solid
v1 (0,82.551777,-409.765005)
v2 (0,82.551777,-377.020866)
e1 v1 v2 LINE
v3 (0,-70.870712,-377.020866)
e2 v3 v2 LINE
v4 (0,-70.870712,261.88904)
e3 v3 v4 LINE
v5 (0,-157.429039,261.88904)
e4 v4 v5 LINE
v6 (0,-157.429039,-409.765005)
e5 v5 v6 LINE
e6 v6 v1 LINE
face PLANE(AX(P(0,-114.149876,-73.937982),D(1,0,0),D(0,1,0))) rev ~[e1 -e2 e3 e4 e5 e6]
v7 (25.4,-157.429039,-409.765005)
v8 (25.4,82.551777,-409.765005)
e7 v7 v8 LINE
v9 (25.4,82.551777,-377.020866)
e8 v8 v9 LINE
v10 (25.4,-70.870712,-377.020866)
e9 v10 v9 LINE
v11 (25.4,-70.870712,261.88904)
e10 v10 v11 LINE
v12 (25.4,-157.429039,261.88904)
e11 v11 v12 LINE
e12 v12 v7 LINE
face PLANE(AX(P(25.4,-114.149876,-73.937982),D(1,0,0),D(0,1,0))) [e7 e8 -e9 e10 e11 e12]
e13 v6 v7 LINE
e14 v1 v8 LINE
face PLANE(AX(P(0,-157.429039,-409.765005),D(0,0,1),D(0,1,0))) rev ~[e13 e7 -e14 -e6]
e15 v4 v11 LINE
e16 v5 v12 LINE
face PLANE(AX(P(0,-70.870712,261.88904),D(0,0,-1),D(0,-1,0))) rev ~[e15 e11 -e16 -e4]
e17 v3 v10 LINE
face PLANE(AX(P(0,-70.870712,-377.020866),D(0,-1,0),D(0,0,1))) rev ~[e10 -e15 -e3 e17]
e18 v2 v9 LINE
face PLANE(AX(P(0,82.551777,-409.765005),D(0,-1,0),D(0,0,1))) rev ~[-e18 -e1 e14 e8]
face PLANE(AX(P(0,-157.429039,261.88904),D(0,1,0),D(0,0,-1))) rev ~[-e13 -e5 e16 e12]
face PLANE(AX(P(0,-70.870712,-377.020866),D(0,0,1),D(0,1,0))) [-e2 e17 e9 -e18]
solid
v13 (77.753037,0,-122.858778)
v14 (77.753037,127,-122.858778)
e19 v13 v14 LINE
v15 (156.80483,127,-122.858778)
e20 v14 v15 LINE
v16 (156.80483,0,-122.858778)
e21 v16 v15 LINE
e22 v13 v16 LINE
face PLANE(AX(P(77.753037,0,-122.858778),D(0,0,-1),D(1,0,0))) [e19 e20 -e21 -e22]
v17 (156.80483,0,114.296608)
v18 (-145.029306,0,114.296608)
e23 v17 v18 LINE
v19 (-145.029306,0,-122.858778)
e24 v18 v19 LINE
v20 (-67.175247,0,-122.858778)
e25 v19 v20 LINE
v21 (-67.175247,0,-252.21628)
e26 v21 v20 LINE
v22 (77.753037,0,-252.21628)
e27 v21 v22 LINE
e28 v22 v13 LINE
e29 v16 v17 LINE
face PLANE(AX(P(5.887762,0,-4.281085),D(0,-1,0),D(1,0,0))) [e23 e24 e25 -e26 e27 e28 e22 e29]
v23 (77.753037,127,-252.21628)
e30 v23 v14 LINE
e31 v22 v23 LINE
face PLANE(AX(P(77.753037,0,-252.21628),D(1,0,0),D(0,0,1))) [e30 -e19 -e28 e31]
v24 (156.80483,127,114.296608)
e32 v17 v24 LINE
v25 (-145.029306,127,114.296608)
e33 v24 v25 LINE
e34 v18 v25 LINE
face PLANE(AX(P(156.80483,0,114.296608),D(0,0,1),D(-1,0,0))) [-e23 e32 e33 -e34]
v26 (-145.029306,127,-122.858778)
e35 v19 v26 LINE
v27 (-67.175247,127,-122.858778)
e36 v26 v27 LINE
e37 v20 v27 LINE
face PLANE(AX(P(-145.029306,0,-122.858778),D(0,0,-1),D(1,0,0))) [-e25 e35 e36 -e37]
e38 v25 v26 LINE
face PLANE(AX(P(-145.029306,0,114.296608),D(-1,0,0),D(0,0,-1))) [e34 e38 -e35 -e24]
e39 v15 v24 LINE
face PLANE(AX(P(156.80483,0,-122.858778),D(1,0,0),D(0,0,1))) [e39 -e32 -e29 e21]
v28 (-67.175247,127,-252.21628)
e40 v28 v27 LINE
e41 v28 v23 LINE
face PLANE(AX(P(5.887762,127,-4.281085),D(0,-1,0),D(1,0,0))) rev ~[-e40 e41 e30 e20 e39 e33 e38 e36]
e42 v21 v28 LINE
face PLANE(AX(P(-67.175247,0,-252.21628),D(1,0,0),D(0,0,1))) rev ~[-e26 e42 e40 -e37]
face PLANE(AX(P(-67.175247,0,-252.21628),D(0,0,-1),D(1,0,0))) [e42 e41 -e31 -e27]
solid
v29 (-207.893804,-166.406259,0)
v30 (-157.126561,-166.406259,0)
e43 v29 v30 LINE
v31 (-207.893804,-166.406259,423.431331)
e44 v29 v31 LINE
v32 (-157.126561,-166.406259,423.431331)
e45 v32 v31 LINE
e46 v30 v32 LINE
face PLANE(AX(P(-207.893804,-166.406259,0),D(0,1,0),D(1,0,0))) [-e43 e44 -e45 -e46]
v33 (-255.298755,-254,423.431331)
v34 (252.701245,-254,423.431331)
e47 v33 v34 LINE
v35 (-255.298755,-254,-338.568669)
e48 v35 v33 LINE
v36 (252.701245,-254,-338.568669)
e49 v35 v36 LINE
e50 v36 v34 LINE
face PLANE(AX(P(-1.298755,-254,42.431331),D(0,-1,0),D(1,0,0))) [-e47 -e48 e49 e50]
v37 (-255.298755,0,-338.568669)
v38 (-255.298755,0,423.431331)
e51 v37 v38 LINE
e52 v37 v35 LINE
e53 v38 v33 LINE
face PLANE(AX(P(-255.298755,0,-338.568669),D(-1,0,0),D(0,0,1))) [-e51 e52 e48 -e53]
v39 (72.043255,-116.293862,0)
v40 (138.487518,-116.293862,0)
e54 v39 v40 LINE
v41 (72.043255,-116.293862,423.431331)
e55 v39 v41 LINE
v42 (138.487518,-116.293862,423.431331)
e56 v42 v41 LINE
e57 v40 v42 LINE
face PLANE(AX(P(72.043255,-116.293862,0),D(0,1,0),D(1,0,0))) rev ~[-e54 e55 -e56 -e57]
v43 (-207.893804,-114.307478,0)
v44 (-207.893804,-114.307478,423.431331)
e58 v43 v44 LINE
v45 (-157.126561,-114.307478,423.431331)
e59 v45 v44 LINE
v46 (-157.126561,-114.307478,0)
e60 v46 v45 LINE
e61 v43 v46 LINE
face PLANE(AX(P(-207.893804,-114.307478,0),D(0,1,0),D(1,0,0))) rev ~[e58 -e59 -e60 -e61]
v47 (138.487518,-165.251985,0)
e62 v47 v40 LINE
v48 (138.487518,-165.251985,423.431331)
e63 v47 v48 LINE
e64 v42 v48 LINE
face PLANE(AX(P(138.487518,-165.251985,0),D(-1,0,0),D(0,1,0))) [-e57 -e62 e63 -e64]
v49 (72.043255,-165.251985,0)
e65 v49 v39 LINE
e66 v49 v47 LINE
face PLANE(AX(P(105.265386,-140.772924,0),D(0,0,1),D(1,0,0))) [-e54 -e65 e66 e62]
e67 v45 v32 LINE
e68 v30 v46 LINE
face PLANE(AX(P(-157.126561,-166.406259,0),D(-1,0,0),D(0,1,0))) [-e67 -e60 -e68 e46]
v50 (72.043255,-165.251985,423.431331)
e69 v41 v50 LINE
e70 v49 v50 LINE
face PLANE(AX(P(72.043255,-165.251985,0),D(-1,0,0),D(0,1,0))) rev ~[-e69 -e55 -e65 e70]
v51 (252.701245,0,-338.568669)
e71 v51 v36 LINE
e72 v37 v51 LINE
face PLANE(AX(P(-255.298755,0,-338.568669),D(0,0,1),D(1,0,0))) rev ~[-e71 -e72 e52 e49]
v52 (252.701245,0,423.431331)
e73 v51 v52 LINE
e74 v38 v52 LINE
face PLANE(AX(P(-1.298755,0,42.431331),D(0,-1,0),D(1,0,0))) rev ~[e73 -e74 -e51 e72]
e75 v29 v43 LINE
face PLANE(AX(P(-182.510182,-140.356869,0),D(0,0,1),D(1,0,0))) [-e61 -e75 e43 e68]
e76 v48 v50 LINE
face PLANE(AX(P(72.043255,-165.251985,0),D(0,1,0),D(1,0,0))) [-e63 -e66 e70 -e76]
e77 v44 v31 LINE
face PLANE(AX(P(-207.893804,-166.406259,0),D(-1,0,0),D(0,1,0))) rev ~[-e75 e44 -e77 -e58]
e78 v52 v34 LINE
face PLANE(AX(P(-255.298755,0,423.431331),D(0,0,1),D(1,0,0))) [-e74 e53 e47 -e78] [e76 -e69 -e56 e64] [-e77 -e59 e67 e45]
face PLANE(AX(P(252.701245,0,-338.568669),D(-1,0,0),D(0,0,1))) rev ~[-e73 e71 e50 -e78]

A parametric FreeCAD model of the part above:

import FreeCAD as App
import Part
import Sketcher
from FreeCAD import Vector
Q = App.Units.Quantity


def add_polygon(sketch, points):
    """Adds a closed chain of lines whose ends are joined by coincident constraints."""
    first, n = sketch.GeometryCount, len(points)
    for a, b in zip(points, points[1:] + points[:1]):
        sketch.addGeometry(Part.LineSegment(App.Vector(*a, 0), App.Vector(*b, 0)), False)
    for i in range(n):
        sketch.addConstraint(Sketcher.Constraint("Coincident", first + i, 2, first + (i + 1) % n, 1))

doc = App.newDocument("Part")
params = doc.addObject("Spreadsheet::Sheet", "Params")
for row, (alias, value) in enumerate([
    ("sketch1_width", "20 in"),
    ("sketch1_height", "30 in"),
    ("pad1_length", "10 in"),
    ("pocket1_length", "20 in"),
    ("pad2_length", "5 in"),
    ("pad3_length", "1 in"),
], start=1):
    params.set(f"A{row}", alias)
    params.set(f"B{row}", "=" + value)
    params.setAlias(f"B{row}", alias)

body = doc.addObject("PartDesign::Body", "Body")

# Sketch on XZ plane
sketch1 = body.newObject("Sketcher::SketchObject", "Sketch")
sketch1.AttachmentSupport = (doc.getObject("XZ_Plane"), [""])
sketch1.MapMode = "FlatFace"
add_polygon(sketch1, [(-255, 423), (-255, -339), (253, -339), (253, 423)])  # lines 0-3
sketch1.addConstraint([
    Sketcher.Constraint("Vertical", 0),
    Sketcher.Constraint("Horizontal", 1),
    Sketcher.Constraint("Vertical", 2),
    Sketcher.Constraint("Horizontal", 3),
    Sketcher.Constraint("DistanceX", 1, 1, 1, 2, Q("20 in")),
    Sketcher.Constraint("DistanceY", 0, 2, 0, 1, Q("30 in")),
    Sketcher.Constraint("DistanceY", 0, 2, -1, 1, Q("338.568669 mm")),
    Sketcher.Constraint("DistanceX", 0, 2, -1, 1, Q("255.298755 mm")),
])
sketch1.setExpression("Constraints[8]", "Params.sketch1_width")
sketch1.setExpression("Constraints[9]", "Params.sketch1_height")
pad1 = body.newObject("PartDesign::Pad", "Pad")
pad1.Profile = sketch1
pad1.setExpression("Length", "Params.pad1_length")

# Sketch on XY plane
sketch2 = body.newObject("Sketcher::SketchObject", "Sketch001")
sketch2.AttachmentSupport = (doc.getObject("XY_Plane"), [""])
sketch2.MapMode = "FlatFace"
add_polygon(sketch2, [(-208, -114), (-208, -166), (-157, -166), (-157, -114)])  # lines 0-3
add_polygon(sketch2, [(72, -116), (72, -165), (138, -165), (138, -116)])  # lines 4-7
sketch2.addConstraint([
    Sketcher.Constraint("Vertical", 0),
    Sketcher.Constraint("Horizontal", 1),
    Sketcher.Constraint("Vertical", 2),
    Sketcher.Constraint("Horizontal", 3),
    Sketcher.Constraint("Vertical", 4),
    Sketcher.Constraint("Horizontal", 5),
    Sketcher.Constraint("Vertical", 6),
    Sketcher.Constraint("Horizontal", 7),
    Sketcher.Constraint("DistanceY", 0, 2, 0, 1, Q("52.098781 mm")),
    Sketcher.Constraint("DistanceX", 1, 1, 1, 2, Q("50.767243 mm")),
    Sketcher.Constraint("DistanceX", 5, 1, 5, 2, Q("66.444263 mm")),
    Sketcher.Constraint("DistanceY", 4, 2, 4, 1, Q("48.958123 mm")),
    Sketcher.Constraint("DistanceY", 0, 2, -1, 1, Q("166.406259 mm")),
    Sketcher.Constraint("DistanceX", 1, 2, -1, 1, Q("157.126561 mm")),
    Sketcher.Constraint("DistanceX", 0, 2, 4, 2, Q("279.937059 mm")),
    Sketcher.Constraint("DistanceY", 4, 2, -1, 1, Q("165.251985 mm")),
])
pocket1 = body.newObject("PartDesign::Pocket", "Pocket")
pocket1.Profile = sketch2
pocket1.setExpression("Length", "Params.pocket1_length")
pocket1.Reversed = True
body2 = doc.addObject("PartDesign::Body", "Body001")

# Sketch on XZ plane
sketch3 = body2.newObject("Sketcher::SketchObject", "Sketch002")
sketch3.AttachmentSupport = (doc.getObject("XZ_Plane001"), [""])
sketch3.MapMode = "FlatFace"
add_polygon(sketch3, [(157, -123), (157, 114), (-145, 114), (-145, -123), (-67, -123), (-67, -252), (78, -252), (78, -123)])  # lines 0-7
sketch3.addConstraint([
    Sketcher.Constraint("Vertical", 0),
    Sketcher.Constraint("Horizontal", 1),
    Sketcher.Constraint("Vertical", 2),
    Sketcher.Constraint("Horizontal", 3),
    Sketcher.Constraint("Vertical", 4),
    Sketcher.Constraint("Horizontal", 5),
    Sketcher.Constraint("Vertical", 6),
    Sketcher.Constraint("Horizontal", 7),
    Sketcher.Constraint("Horizontal", 3, 2, 6, 2),
    Sketcher.Constraint("DistanceY", 4, 2, 4, 1, Q("129.357502 mm")),
    Sketcher.Constraint("DistanceX", 3, 1, 3, 2, Q("77.85406 mm")),
    Sketcher.Constraint("DistanceX", 1, 2, 1, 1, Q("301.834136 mm")),
    Sketcher.Constraint("DistanceX", 5, 1, 5, 2, Q("144.928284 mm")),
    Sketcher.Constraint("DistanceY", 0, 1, 0, 2, Q("237.155385 mm")),
    Sketcher.Constraint("DistanceX", -1, 1, 0, 2, Q("156.80483 mm")),
    Sketcher.Constraint("DistanceY", 4, 2, -1, 1, Q("252.21628 mm")),
])
pad2 = body2.newObject("PartDesign::Pad", "Pad001")
pad2.Profile = sketch3
pad2.setExpression("Length", "Params.pad2_length")
pad2.Reversed = True
body3 = doc.addObject("PartDesign::Body", "Body002")

# Sketch on YZ plane
sketch4 = body3.newObject("Sketcher::SketchObject", "Sketch003")
sketch4.AttachmentSupport = (doc.getObject("YZ_Plane002"), [""])
sketch4.MapMode = "FlatFace"
add_polygon(sketch4, [(-71, 262), (-157, 262), (-157, -410), (83, -410), (83, -377), (-71, -377)])  # lines 0-5
sketch4.addConstraint([
    Sketcher.Constraint("Horizontal", 0),
    Sketcher.Constraint("Vertical", 1),
    Sketcher.Constraint("Horizontal", 2),
    Sketcher.Constraint("Vertical", 3),
    Sketcher.Constraint("Horizontal", 4),
    Sketcher.Constraint("Vertical", 5),
    Sketcher.Constraint("DistanceX", 4, 2, 4, 1, Q("153.42249 mm")),
    Sketcher.Constraint("DistanceY", 3, 1, 3, 2, Q("32.744139 mm")),
    Sketcher.Constraint("DistanceX", 0, 2, 0, 1, Q("86.558327 mm")),
    Sketcher.Constraint("DistanceY", 1, 2, 1, 1, Q("671.654046 mm")),
    Sketcher.Constraint("DistanceX", 0, 2, -1, 1, Q("157.429039 mm")),
    Sketcher.Constraint("DistanceY", -1, 1, 0, 2, Q("261.88904 mm")),
])
pad3 = body3.newObject("PartDesign::Pad", "Pad002")
pad3.Profile = sketch4
pad3.setExpression("Length", "Params.pad3_length")

doc.recompute()
